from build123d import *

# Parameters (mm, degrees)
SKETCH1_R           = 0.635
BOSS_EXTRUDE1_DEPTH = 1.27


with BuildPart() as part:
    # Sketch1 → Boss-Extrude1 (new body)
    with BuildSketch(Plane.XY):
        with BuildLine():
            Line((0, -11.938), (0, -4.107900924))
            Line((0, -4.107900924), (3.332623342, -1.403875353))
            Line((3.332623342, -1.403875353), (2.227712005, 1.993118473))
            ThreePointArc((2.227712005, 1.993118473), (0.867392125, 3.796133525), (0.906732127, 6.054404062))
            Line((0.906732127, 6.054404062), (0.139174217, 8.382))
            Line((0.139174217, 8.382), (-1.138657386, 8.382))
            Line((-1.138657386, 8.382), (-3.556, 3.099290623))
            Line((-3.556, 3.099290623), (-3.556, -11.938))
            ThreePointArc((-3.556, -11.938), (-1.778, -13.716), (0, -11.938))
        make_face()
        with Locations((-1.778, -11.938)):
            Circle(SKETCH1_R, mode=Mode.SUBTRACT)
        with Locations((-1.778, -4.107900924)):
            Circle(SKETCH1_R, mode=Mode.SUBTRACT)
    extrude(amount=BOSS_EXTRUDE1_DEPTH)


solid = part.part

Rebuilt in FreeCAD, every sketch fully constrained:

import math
import FreeCAD as App
import Part
import Sketcher
Q = App.Units.Quantity

doc = App.newDocument("Part")
params = doc.addObject("Spreadsheet::Sheet", "Params")
for row, (alias, value) in enumerate([
    ("sketch1_diameter", "0.05 in"),
    ("sketch1_radius", "0.07 in"),
    ("pad1_length", "0.05 in"),
], start=1):
    params.set(f"A{row}", alias)
    params.set(f"B{row}", "=" + value)
    params.setAlias(f"B{row}", alias)

body = doc.addObject("PartDesign::Body", "Body")

sketch1 = body.newObject("Sketcher::SketchObject", "Sketch")
sketch1.AttachmentSupport = (doc.getObject("XY_Plane"), [""])
sketch1.MapMode = "FlatFace"
sketch1.addGeometry([
    Part.LineSegment(App.Vector(0, -11.9, 0), App.Vector(0, -4.1, 0)),
    Part.LineSegment(App.Vector(0, -4.1, 0), App.Vector(3.3, -1.4, 0)),
    Part.LineSegment(App.Vector(3.3, -1.4, 0), App.Vector(2.2, 2, 0)),
    Part.ArcOfCircle(Part.Circle(App.Vector(4.2, 4.9, 0), App.Vector(0, 0, 1), 3.5), math.radians(160), math.radians(236)),
    Part.LineSegment(App.Vector(0.9, 6.1, 0), App.Vector(0.1, 8.4, 0)),
    Part.LineSegment(App.Vector(0.1, 8.4, 0), App.Vector(-1.1, 8.4, 0)),
    Part.LineSegment(App.Vector(-1.1, 8.4, 0), App.Vector(-3.6, 3.1, 0)),
    Part.LineSegment(App.Vector(-3.6, 3.1, 0), App.Vector(-3.6, -11.9, 0)),
    Part.ArcOfCircle(Part.Circle(App.Vector(-1.8, -11.9, 0), App.Vector(0, 0, 1), 1.8), math.radians(180), math.radians(360)),
    Part.Circle(App.Vector(-1.8, -11.9, 0), App.Vector(0, 0, 1), 0.6),
    Part.Circle(App.Vector(-1.8, -4.1, 0), App.Vector(0, 0, 1), 0.6),
], False)
sketch1.addConstraint([
    Sketcher.Constraint("Coincident", 0, 2, 1, 1),
    Sketcher.Constraint("Coincident", 1, 2, 2, 1),
    Sketcher.Constraint("Coincident", 2, 2, 3, 2),
    Sketcher.Constraint("Coincident", 3, 1, 4, 1),
    Sketcher.Constraint("Coincident", 4, 2, 5, 1),
    Sketcher.Constraint("Coincident", 5, 2, 6, 1),
    Sketcher.Constraint("Coincident", 6, 2, 7, 1),
    Sketcher.Constraint("Tangent", 7, 2, 8, 1),
    Sketcher.Constraint("Tangent", 8, 2, 0, 1),
    Sketcher.Constraint("Vertical", 0),
    Sketcher.Constraint("Horizontal", 5),
    Sketcher.Constraint("Vertical", 7),
    Sketcher.Constraint("Coincident", 9, 3, 8, 3),
    Sketcher.Constraint("Equal", 9, 10),
    Sketcher.Constraint("PointOnObject", 0, 2, -2),
    Sketcher.Constraint("Horizontal", 10, 3, 0, 2),
    Sketcher.Constraint("Vertical", 9, 3, 10, 3),
    Sketcher.Constraint("Diameter", 9, Q("0.05 in")),
    Sketcher.Constraint("Radius", 8, Q("0.07 in")),
    Sketcher.Constraint("DistanceY", 8, 3, -1, 1, Q("0.47 in")),
    Sketcher.Constraint("DistanceY", -1, 1, 4, 2, Q("0.33 in")),
    Sketcher.Constraint("DistanceY", 0, 1, 0, 2, Q("7.830099 mm")),
    Sketcher.Constraint("Radius", 3, Q("3.465963 mm")),
    Sketcher.Constraint("DistanceX", 5, 2, 5, 1, Q("1.277832 mm")),
    Sketcher.Constraint("DistanceY", 7, 2, 7, 1, Q("15.037291 mm")),
    Sketcher.Constraint("Distance", 2, Q("3.57217 mm")),
    Sketcher.Constraint("DistanceY", -1, 1, 2, 2, Q("1.993118 mm")),
    Sketcher.Constraint("DistanceY", 1, 2, 3, 3, Q("6.272069 mm")),
    Sketcher.Constraint("DistanceX", 2, 2, 1, 2, Q("1.104911 mm")),
    Sketcher.Constraint("DistanceY", 3, 3, 3, 1, Q("1.18621 mm")),
    Sketcher.Constraint("DistanceX", 4, 2, 1, 2, Q("3.193449 mm")),
    Sketcher.Constraint("Distance", 1, Q("4.291635 mm")),
])
sketch1.setExpression("Constraints[17]", "Params.sketch1_diameter")
sketch1.setExpression("Constraints[18]", "Params.sketch1_radius")
pad1 = body.newObject("PartDesign::Pad", "Pad")
pad1.Profile = sketch1
pad1.setExpression("Length", "Params.pad1_length")

doc.recompute()
